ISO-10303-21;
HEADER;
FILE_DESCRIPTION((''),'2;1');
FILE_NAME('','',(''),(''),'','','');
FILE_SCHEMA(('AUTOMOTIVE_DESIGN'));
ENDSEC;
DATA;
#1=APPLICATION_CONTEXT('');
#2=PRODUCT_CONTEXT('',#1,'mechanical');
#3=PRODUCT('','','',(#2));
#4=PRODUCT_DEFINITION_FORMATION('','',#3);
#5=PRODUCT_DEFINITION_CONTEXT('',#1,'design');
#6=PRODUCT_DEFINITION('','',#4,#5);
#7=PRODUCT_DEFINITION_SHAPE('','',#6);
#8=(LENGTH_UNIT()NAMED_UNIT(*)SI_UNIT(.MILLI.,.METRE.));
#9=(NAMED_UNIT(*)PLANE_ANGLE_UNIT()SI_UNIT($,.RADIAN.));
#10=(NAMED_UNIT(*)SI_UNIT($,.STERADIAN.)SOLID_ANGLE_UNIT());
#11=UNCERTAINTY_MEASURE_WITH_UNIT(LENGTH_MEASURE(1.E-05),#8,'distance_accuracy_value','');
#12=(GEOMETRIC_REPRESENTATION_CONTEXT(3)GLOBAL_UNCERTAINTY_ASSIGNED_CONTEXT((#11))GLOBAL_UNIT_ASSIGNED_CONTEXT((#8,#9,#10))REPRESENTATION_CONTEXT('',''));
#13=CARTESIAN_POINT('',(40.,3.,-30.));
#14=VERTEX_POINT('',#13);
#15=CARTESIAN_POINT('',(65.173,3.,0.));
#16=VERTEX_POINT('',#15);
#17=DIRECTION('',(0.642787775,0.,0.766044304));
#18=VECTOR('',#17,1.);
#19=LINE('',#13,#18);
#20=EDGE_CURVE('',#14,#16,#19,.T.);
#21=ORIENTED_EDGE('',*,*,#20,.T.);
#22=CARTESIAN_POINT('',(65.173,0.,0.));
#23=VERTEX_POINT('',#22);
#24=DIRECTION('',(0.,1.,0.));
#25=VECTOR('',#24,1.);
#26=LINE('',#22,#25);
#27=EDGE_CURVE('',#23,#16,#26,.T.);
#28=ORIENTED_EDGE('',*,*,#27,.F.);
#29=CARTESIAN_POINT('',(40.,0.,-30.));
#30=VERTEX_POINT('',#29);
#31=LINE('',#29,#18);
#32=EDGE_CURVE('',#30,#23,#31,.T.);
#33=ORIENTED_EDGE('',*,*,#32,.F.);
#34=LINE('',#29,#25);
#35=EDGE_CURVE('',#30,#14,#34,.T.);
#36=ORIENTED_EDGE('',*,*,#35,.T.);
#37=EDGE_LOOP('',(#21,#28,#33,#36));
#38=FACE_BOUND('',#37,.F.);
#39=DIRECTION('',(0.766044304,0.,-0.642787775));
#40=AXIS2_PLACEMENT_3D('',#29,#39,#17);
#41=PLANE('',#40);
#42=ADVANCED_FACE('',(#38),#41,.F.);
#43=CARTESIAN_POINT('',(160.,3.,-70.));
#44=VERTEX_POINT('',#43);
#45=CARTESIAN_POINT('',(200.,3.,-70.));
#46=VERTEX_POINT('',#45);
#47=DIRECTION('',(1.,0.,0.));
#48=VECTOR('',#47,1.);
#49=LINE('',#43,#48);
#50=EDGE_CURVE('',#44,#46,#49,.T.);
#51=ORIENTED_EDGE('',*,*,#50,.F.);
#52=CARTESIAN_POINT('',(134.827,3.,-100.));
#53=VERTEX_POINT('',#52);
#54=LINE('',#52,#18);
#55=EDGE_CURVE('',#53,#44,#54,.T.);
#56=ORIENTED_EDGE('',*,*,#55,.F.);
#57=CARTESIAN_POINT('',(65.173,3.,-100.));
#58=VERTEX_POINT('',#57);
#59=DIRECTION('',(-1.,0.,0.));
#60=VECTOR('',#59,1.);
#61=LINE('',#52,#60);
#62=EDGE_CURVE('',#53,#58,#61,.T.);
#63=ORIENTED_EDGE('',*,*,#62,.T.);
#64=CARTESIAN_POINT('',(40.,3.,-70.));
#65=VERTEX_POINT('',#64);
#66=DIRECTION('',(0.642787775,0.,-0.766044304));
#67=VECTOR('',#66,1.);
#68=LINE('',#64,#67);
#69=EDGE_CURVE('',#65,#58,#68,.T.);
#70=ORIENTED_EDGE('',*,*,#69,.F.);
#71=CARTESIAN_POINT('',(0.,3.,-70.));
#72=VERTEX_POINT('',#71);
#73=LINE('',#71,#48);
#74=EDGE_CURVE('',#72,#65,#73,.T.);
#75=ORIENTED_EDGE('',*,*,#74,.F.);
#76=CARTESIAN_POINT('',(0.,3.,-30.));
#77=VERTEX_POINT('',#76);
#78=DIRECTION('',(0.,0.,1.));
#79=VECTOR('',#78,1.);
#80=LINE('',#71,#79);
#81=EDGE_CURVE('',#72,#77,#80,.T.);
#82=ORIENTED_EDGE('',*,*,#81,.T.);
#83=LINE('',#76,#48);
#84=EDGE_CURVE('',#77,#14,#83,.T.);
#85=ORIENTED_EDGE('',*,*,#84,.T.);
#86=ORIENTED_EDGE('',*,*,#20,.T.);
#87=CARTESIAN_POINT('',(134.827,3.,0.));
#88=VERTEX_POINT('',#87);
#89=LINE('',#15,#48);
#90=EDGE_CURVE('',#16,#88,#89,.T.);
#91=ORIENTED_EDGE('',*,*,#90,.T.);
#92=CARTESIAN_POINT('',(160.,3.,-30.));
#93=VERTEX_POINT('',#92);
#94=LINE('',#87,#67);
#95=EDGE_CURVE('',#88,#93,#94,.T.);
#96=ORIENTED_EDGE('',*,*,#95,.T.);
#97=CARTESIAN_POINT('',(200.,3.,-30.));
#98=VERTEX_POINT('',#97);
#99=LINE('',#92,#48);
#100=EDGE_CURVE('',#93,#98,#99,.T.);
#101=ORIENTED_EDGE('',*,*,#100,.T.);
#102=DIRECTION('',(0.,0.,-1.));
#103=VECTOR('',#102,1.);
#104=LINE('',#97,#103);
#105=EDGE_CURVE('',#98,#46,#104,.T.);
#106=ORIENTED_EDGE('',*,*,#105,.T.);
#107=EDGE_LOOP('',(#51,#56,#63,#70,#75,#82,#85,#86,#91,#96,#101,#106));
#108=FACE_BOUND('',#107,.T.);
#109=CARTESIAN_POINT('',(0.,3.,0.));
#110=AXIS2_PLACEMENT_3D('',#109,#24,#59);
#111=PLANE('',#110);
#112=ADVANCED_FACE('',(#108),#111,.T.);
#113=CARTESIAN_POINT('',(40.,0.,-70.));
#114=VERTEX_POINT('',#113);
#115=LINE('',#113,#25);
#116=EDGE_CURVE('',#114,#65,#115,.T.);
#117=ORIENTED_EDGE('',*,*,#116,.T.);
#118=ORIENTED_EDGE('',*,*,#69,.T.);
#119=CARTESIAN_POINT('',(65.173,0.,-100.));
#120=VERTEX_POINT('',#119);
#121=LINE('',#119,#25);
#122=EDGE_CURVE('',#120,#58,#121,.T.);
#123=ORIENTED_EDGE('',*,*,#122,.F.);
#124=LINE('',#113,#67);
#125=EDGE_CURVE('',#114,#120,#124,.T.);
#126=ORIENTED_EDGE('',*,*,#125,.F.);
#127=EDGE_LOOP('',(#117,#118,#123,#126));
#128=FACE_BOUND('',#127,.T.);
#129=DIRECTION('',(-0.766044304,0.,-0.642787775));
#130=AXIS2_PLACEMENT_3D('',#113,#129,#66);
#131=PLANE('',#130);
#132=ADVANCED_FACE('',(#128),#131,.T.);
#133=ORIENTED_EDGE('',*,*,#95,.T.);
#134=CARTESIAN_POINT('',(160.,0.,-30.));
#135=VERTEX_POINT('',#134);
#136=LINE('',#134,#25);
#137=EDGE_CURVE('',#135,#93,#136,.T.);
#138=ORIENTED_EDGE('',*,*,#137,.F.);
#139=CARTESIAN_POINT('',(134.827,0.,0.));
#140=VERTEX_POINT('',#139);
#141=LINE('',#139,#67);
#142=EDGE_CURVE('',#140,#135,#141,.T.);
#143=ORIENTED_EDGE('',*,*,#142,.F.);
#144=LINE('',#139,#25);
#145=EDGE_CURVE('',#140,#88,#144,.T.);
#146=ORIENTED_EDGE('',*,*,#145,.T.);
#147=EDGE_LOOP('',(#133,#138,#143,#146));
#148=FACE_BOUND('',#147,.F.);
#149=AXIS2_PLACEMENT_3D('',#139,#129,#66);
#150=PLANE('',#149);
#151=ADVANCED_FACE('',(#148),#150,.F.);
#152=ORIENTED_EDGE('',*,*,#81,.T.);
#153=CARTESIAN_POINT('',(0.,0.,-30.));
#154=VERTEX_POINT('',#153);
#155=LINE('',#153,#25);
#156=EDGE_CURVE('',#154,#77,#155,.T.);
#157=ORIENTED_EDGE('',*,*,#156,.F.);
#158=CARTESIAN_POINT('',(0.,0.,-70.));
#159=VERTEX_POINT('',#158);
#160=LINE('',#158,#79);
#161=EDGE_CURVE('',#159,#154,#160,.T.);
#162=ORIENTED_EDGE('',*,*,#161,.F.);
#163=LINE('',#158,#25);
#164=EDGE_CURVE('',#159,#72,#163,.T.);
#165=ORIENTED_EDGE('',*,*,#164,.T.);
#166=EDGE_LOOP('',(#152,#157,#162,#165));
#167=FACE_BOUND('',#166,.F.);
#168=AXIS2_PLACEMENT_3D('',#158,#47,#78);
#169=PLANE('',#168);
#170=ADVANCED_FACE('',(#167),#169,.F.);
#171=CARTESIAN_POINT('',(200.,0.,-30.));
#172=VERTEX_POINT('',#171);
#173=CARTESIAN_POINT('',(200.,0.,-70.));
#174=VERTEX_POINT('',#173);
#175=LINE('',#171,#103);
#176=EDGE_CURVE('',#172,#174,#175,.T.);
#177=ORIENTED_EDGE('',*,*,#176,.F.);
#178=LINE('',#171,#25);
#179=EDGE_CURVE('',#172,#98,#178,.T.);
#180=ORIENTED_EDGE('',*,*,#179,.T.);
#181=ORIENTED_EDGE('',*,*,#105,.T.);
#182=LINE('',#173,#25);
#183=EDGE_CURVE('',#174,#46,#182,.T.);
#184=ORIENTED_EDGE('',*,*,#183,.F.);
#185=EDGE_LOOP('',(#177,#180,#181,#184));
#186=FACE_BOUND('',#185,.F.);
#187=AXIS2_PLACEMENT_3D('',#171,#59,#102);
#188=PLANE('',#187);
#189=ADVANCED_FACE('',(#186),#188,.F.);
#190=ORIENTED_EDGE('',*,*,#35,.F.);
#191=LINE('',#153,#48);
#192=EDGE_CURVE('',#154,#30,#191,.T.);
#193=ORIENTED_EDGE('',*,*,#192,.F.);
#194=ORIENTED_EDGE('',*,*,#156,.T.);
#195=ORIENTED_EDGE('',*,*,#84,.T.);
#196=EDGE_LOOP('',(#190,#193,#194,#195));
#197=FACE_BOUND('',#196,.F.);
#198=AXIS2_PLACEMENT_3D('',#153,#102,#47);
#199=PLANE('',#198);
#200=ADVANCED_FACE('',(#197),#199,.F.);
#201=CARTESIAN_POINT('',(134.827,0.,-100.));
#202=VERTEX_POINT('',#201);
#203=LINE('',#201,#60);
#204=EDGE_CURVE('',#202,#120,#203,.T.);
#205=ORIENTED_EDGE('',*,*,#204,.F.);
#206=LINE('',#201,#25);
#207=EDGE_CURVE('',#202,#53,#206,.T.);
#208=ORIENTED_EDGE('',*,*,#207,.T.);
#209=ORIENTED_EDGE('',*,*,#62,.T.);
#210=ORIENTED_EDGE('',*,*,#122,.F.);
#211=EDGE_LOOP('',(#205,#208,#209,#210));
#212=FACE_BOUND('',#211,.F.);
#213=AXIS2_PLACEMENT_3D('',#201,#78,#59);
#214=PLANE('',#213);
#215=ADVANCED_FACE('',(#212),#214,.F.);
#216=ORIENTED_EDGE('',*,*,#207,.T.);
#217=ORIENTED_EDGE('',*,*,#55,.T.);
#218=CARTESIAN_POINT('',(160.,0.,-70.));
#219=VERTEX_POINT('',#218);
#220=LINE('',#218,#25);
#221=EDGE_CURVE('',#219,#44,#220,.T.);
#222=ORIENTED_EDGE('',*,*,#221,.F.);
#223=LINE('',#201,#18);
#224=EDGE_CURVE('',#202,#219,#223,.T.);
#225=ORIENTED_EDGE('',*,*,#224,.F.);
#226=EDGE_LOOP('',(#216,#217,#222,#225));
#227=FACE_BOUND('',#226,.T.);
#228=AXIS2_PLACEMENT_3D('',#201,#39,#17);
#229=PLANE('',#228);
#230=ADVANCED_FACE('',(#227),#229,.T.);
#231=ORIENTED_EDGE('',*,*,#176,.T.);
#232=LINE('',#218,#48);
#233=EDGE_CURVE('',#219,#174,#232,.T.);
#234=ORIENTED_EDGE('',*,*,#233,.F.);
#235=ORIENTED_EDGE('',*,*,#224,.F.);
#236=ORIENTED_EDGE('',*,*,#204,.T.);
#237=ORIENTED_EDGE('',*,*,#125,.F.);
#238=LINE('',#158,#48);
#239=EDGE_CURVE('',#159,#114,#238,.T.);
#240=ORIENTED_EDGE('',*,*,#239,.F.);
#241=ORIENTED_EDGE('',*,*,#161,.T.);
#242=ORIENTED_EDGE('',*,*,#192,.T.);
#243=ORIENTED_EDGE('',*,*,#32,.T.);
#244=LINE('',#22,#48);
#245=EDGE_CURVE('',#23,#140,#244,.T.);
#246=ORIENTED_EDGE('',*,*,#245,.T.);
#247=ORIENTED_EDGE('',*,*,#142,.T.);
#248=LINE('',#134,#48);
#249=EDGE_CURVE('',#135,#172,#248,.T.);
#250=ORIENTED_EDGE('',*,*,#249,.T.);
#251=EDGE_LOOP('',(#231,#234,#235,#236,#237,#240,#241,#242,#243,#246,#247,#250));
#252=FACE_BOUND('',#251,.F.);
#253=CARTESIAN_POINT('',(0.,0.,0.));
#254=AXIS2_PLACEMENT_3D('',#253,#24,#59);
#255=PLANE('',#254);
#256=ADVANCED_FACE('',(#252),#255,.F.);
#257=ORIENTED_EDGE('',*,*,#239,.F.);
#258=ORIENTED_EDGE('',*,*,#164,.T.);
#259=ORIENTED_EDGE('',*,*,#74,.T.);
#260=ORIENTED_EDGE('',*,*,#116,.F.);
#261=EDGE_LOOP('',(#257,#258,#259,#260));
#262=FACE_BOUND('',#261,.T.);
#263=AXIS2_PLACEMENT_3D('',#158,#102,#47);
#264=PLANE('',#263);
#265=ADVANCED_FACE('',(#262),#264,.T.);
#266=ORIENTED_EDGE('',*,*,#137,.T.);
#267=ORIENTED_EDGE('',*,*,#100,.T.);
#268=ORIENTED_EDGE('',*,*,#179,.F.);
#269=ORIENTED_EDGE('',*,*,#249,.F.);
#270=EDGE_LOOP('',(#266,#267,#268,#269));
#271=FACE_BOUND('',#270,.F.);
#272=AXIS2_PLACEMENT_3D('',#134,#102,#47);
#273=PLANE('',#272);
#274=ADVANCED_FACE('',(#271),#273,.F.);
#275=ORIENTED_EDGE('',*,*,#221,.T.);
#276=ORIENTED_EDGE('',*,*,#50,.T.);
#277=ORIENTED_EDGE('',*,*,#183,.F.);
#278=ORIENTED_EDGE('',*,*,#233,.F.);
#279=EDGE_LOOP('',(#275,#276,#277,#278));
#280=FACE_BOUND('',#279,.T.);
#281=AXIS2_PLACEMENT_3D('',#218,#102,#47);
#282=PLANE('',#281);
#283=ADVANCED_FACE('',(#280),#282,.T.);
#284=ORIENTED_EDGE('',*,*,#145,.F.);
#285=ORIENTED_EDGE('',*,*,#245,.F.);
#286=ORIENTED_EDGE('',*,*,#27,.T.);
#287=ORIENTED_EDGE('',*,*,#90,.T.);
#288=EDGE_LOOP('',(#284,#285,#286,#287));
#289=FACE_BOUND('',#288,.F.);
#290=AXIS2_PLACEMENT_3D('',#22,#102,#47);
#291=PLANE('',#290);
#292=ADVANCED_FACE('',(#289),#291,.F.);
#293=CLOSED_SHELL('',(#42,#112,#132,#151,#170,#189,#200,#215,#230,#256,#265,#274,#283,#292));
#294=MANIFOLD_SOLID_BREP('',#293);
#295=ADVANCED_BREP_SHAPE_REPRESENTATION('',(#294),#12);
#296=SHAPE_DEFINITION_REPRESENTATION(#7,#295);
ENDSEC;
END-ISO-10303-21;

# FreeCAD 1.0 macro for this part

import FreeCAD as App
import Part
import Sketcher
Q = App.Units.Quantity

doc = App.newDocument("Part")
params = doc.addObject("Spreadsheet::Sheet", "Params")
for row, (alias, value) in enumerate([
    ("sketch1_width", "40 mm"),
    ("pad1_length", "3 mm"),
], start=1):
    params.set(f"A{row}", alias)
    params.set(f"B{row}", "=" + value)
    params.setAlias(f"B{row}", alias)

body = doc.addObject("PartDesign::Body", "Body")

sketch1 = body.newObject("Sketcher::SketchObject", "Sketch")
sketch1.AttachmentSupport = (doc.getObject("XZ_Plane"), [""])
sketch1.MapMode = "FlatFace"
sketch1.addGeometry(Part.LineSegment(App.Vector(40, -30, 0), App.Vector(65.173, 0, 0)), False)
sketch1.addGeometry(Part.LineSegment(App.Vector(65.173, 0, 0), App.Vector(134.827, 0, 0)), False)
sketch1.addGeometry(Part.LineSegment(App.Vector(134.827, 0, 0), App.Vector(160, -30, 0)), False)
sketch1.addGeometry(Part.LineSegment(App.Vector(160, -30, 0), App.Vector(200, -30, 0)), False)
sketch1.addGeometry(Part.LineSegment(App.Vector(200, -30, 0), App.Vector(200, -70, 0)), False)
sketch1.addGeometry(Part.LineSegment(App.Vector(200, -70, 0), App.Vector(160, -70, 0)), False)
sketch1.addGeometry(Part.LineSegment(App.Vector(160, -70, 0), App.Vector(134.827, -100, 0)), False)
sketch1.addGeometry(Part.LineSegment(App.Vector(134.827, -100, 0), App.Vector(65.173, -100, 0)), False)
sketch1.addGeometry(Part.LineSegment(App.Vector(65.173, -100, 0), App.Vector(40, -70, 0)), False)
sketch1.addGeometry(Part.LineSegment(App.Vector(40, -70, 0), App.Vector(0, -70, 0)), False)
sketch1.addGeometry(Part.LineSegment(App.Vector(0, -70, 0), App.Vector(0, -30, 0)), False)
sketch1.addGeometry(Part.LineSegment(App.Vector(0, -30, 0), App.Vector(40, -30, 0)), False)
sketch1.addConstraint(Sketcher.Constraint("Coincident", 0, 2, 1, 1))
sketch1.addConstraint(Sketcher.Constraint("Coincident", 1, 2, 2, 1))
sketch1.addConstraint(Sketcher.Constraint("Coincident", 2, 2, 3, 1))
sketch1.addConstraint(Sketcher.Constraint("Coincident", 3, 2, 4, 1))
sketch1.addConstraint(Sketcher.Constraint("Coincident", 4, 2, 5, 1))
sketch1.addConstraint(Sketcher.Constraint("Coincident", 5, 2, 6, 1))
sketch1.addConstraint(Sketcher.Constraint("Coincident", 6, 2, 7, 1))
sketch1.addConstraint(Sketcher.Constraint("Coincident", 7, 2, 8, 1))
sketch1.addConstraint(Sketcher.Constraint("Coincident", 8, 2, 9, 1))
sketch1.addConstraint(Sketcher.Constraint("Coincident", 9, 2, 10, 1))
sketch1.addConstraint(Sketcher.Constraint("Coincident", 10, 2, 11, 1))
sketch1.addConstraint(Sketcher.Constraint("Coincident", 11, 2, 0, 1))
sketch1.addConstraint(Sketcher.Constraint("Horizontal", 1))
sketch1.addConstraint(Sketcher.Constraint("Horizontal", 3))
sketch1.addConstraint(Sketcher.Constraint("Vertical", 4))
sketch1.addConstraint(Sketcher.Constraint("Horizontal", 5))
sketch1.addConstraint(Sketcher.Constraint("Horizontal", 7))
sketch1.addConstraint(Sketcher.Constraint("Horizontal", 9))
sketch1.addConstraint(Sketcher.Constraint("Vertical", 10))
sketch1.addConstraint(Sketcher.Constraint("Horizontal", 11))
sketch1.addConstraint(Sketcher.Constraint("PointOnObject", 0, 2, -1))
sketch1.addConstraint(Sketcher.Constraint("PointOnObject", 9, 2, -2))
sketch1.addConstraint(Sketcher.Constraint("Parallel", 0, 6))
sketch1.addConstraint(Sketcher.Constraint("Parallel", 2, 8))
sketch1.addConstraint(Sketcher.Constraint("Horizontal", 5, 2, 8, 2))
sketch1.addConstraint(Sketcher.Constraint("Horizontal", 3, 2, 10, 2))
sketch1.addConstraint(Sketcher.Constraint("Vertical", 2, 2, 5, 2))
sketch1.addConstraint(Sketcher.Constraint("Vertical", 1, 2, 6, 2))
sketch1.addConstraint(Sketcher.Constraint("Vertical", 0, 2, 7, 2))
sketch1.addConstraint(Sketcher.Constraint("Vertical", 8, 2, 11, 2))
sketch1.addConstraint(Sketcher.Constraint("Equal", 5, 9))
sketch1.addConstraint(Sketcher.Constraint("Equal", 11, 4))
sketch1.addConstraint(Sketcher.Constraint("DistanceX", 3, 1, 3, 2, Q("40 mm")))
sketch1.addConstraint(Sketcher.Constraint("Angle", 6, Q("-130 deg")))
sketch1.addConstraint(Sketcher.Constraint("DistanceY", 2, 2, -1, 1, Q("30 mm")))
sketch1.addConstraint(Sketcher.Constraint("DistanceX", -1, 1, 3, 2, Q("200 mm")))
sketch1.setExpression("Constraints[32]", "Params.sketch1_width")
pad1 = body.newObject("PartDesign::Pad", "Pad")
pad1.Profile = sketch1
pad1.setExpression("Length", "Params.pad1_length")
pad1.Reversed = True

doc.recompute()
